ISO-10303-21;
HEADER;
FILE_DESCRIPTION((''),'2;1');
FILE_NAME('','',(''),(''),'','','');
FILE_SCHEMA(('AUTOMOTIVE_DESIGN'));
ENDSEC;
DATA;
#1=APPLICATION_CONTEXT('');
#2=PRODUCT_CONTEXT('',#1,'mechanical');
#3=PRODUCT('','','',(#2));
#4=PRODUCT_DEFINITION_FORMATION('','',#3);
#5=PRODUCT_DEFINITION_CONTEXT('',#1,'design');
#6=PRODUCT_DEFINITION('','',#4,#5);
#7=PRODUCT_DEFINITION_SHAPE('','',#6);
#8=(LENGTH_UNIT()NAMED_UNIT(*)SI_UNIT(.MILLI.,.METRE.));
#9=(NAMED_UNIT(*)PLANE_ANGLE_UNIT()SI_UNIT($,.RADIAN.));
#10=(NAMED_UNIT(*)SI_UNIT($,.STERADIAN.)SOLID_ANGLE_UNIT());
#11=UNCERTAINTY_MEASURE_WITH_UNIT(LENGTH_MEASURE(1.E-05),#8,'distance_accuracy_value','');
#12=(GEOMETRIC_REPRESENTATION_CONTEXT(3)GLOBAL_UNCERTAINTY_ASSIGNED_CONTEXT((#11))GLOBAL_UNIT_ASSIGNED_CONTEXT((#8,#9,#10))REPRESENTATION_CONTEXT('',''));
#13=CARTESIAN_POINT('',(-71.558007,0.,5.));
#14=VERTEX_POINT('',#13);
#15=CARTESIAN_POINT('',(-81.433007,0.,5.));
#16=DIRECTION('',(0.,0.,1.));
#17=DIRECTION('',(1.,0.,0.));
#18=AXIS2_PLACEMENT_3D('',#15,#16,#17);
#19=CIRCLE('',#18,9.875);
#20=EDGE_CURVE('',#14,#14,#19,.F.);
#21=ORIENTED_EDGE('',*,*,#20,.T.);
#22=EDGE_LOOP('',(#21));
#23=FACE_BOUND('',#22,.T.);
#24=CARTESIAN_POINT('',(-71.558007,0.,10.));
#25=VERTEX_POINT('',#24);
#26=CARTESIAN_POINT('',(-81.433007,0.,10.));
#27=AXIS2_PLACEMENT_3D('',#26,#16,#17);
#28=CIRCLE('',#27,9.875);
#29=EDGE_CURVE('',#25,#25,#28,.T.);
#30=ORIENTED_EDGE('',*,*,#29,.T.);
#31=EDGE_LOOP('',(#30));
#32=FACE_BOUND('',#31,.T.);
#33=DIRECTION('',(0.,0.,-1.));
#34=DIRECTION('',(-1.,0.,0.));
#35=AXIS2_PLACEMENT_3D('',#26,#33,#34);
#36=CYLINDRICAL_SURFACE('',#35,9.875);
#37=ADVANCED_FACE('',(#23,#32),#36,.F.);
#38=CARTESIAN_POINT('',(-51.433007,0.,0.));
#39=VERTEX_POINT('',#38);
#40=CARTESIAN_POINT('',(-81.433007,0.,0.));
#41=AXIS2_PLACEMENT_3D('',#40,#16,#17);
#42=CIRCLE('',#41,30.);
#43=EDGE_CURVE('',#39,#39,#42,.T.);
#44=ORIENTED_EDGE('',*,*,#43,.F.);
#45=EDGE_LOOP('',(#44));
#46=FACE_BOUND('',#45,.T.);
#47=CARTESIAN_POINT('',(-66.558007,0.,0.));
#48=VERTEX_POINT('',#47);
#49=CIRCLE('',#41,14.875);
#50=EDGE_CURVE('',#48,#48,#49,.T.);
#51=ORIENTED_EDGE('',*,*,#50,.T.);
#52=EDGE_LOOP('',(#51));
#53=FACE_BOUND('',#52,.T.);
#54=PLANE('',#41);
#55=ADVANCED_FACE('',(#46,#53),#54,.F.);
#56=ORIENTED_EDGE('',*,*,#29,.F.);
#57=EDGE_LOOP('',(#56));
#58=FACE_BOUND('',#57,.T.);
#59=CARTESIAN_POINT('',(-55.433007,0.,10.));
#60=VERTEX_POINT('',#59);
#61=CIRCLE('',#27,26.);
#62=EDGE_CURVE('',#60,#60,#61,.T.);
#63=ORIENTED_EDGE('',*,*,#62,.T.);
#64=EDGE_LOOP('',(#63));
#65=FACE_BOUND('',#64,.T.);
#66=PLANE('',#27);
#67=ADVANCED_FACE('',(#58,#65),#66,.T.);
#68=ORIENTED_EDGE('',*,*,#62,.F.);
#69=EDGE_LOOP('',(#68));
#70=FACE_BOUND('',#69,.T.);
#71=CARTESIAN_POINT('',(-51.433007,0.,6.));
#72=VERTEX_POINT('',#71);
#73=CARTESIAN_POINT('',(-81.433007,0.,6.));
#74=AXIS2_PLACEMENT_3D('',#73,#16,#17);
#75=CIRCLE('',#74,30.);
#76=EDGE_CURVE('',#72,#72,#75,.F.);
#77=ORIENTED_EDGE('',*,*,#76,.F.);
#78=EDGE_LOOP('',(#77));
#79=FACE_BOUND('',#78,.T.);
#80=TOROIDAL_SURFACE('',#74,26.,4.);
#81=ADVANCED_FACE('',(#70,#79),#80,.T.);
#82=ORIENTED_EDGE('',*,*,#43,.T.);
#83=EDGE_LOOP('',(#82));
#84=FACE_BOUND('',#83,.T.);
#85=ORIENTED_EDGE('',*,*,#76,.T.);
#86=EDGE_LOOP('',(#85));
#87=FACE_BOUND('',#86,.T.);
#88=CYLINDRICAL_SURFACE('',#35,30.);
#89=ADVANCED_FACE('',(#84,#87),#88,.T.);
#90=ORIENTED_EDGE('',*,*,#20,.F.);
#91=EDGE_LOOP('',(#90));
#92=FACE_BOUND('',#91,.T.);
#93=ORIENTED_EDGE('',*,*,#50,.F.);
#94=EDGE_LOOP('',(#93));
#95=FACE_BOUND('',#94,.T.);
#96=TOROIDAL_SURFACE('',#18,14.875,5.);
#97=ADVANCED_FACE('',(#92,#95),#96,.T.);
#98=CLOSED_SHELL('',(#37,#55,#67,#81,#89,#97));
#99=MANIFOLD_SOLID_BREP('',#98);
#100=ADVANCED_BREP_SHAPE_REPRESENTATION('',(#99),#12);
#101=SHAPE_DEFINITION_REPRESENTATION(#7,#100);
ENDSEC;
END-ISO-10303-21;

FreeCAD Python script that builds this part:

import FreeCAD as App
import Part
import Sketcher
from FreeCAD import Vector
Q = App.Units.Quantity


def edges_at(feature, points):
    """Names of the edges that pass closest to the given points."""
    edges = feature.Shape.Edges
    near = lambda p: min(range(len(edges)), key=lambda i: edges[i].distToShape(Part.Vertex(*p))[0])
    return sorted({f"Edge{near(p) + 1}" for p in points})

doc = App.newDocument("Part")
body = doc.addObject("PartDesign::Body", "Body")

sketch1 = doc.addObject("Sketcher::SketchObject", "Sketch")
body.addObject(sketch1)
sketch1.AttachmentSupport = (doc.XY_Plane, [""])
sketch1.MapMode = "FlatFace"
sketch1.addGeometry(Part.Circle(Vector(-81, 0, 0), Vector(0, 0, 1), 30), False)
sketch1.addGeometry(Part.Circle(Vector(-81, 0, 0), Vector(0, 0, 1), 10), False)
sketch1.addConstraint(Sketcher.Constraint("Coincident", 1, 3, 0, 3))
sketch1.addConstraint(Sketcher.Constraint("PointOnObject", 0, 3, -1))
sketch1.addConstraint(Sketcher.Constraint("Diameter", 0, Q("60 mm")))
sketch1.addConstraint(Sketcher.Constraint("Diameter", 1, Q("19.75 mm")))
sketch1.addConstraint(Sketcher.Constraint("DistanceX", 0, 3, -1, 1, Q("81.433007 mm")))
pad1 = doc.addObject("PartDesign::Pad", "Pad")
body.addObject(pad1)
pad1.Profile = sketch1
pad1.Length = 10
doc.recompute()

fillet = doc.addObject("PartDesign::Fillet", "Fillet")
body.addObject(fillet)
fillet.Base = (pad1, edges_at(pad1, [(-111.433, 0, 10)]))
fillet.Radius = 4
doc.recompute()

fillet2 = doc.addObject("PartDesign::Fillet", "Fillet001")
body.addObject(fillet2)
fillet2.Base = (fillet, edges_at(fillet, [(-91.308, 0, 0)]))
fillet2.Radius = 5

doc.recompute()
